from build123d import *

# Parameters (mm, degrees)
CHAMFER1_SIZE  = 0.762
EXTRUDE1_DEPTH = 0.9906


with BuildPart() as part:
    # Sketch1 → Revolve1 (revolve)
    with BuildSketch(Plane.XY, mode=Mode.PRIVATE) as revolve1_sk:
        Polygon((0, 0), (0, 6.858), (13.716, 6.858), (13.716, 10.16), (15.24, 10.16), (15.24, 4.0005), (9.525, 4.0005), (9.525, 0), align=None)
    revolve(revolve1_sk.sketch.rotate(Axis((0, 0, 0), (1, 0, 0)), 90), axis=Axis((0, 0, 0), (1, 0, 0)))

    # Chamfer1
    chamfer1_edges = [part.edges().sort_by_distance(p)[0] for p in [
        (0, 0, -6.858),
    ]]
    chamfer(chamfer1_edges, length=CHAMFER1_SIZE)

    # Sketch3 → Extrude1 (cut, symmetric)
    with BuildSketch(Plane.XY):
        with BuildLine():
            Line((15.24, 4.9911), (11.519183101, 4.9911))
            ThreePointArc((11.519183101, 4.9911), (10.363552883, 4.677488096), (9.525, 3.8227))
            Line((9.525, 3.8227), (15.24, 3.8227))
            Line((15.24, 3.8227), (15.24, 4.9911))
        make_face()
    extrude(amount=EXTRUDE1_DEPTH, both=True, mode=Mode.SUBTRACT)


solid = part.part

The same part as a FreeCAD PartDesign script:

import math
import FreeCAD as App
import Part
import Sketcher

V = App.Vector
Q = App.Units.Quantity


def edges_at(feature, points):
    """Names of the edges that pass closest to the given points."""
    edges = feature.Shape.Edges
    near = lambda p: min(range(len(edges)), key=lambda i: edges[i].distToShape(Part.Vertex(*p))[0])
    return sorted({f"Edge{near(p) + 1}" for p in points})


def add_polygon(sketch, points):
    """Adds a closed chain of lines whose ends are joined by coincident constraints."""
    first, n = sketch.GeometryCount, len(points)
    for a, b in zip(points, points[1:] + points[:1]):
        sketch.addGeometry(Part.LineSegment(App.Vector(*a, 0), App.Vector(*b, 0)), False)
    for i in range(n):
        sketch.addConstraint(Sketcher.Constraint("Coincident", first + i, 2, first + (i + 1) % n, 1))

doc = App.newDocument("Part")
body = doc.addObject("PartDesign::Body", "Body")

# Sketch on XY plane
sketch1 = doc.addObject("Sketcher::SketchObject", "Sketch")
body.addObject(sketch1)
sketch1.AttachmentSupport = (doc.XY_Plane, [""])
sketch1.MapMode = "FlatFace"
add_polygon(sketch1, [(0, 6.858), (0, 0), (9.525, 0), (9.525, 4.0005), (15.24, 4.0005), (15.24, 10.16), (13.716, 10.16), (13.716, 6.858)])  # lines 0-7
sketch1.addConstraint([
    Sketcher.Constraint("Vertical", 0),
    Sketcher.Constraint("Horizontal", 1),
    Sketcher.Constraint("Vertical", 2),
    Sketcher.Constraint("Horizontal", 3),
    Sketcher.Constraint("Vertical", 4),
    Sketcher.Constraint("Horizontal", 5),
    Sketcher.Constraint("Vertical", 6),
    Sketcher.Constraint("Horizontal", 7),
    Sketcher.Constraint("Coincident", 0, 2, -1, 1),
    Sketcher.Constraint("DistanceX", 5, 2, 5, 1, Q("0.06 in")),
    Sketcher.Constraint("DistanceX", 7, 2, 7, 1, Q("0.54 in")),
    Sketcher.Constraint("DistanceY", 0, 2, 0, 1, Q("0.27 in")),
    Sketcher.Constraint("DistanceY", 6, 2, 6, 1, Q("0.13 in")),
    Sketcher.Constraint("DistanceX", 1, 1, 1, 2, Q("0.375 in")),
    Sketcher.Constraint("DistanceY", 2, 1, 2, 2, Q("0.1575 in")),
])
revolution = doc.addObject("PartDesign::Revolution", "Revolution")
body.addObject(revolution)
revolution.Profile = sketch1
revolution.ReferenceAxis = (sketch1, ["H_Axis"])
revolution.Angle = 360
doc.recompute()

chamfer = doc.addObject("PartDesign::Chamfer", "Chamfer")
body.addObject(chamfer)
chamfer.Base = (revolution, edges_at(revolution, [(0, 0, -6.858)]))
chamfer.Size = Q("0.03 in")

# Sketch on XY plane
sketch2 = doc.addObject("Sketcher::SketchObject", "Sketch001")
body.addObject(sketch2)
sketch2.AttachmentSupport = (doc.XY_Plane, [""])
sketch2.MapMode = "FlatFace"
sketch2.addGeometry([
    Part.LineSegment(V(15.24, 4.9911, 0), V(11.519183, 4.9911, 0)),
    Part.ArcOfCircle(Part.Circle(V(11.519183, 2.7051, 0), V(0, 0, 1), 2.286), math.radians(90), math.radians(150.732422)),
    Part.LineSegment(V(9.525, 3.8227, 0), V(15.24, 3.8227, 0)),
    Part.LineSegment(V(15.24, 3.8227, 0), V(15.24, 4.9911, 0)),
], False)
sketch2.addConstraint([
    Sketcher.Constraint("Tangent", 0, 2, 1, 1),
    Sketcher.Constraint("Coincident", 1, 2, 2, 1),
    Sketcher.Constraint("Coincident", 2, 2, 3, 1),
    Sketcher.Constraint("Coincident", 3, 2, 0, 1),
    Sketcher.Constraint("Horizontal", 0),
    Sketcher.Constraint("Horizontal", 2),
    Sketcher.Constraint("Vertical", 3),
    Sketcher.Constraint("Radius", 1, Q("0.09 in")),
    Sketcher.Constraint("DistanceX", -1, 1, 2, 2, Q("0.6 in")),
    Sketcher.Constraint("DistanceX", 2, 1, 2, 2, Q("0.225 in")),
    Sketcher.Constraint("DistanceY", 3, 1, 3, 2, Q("0.046 in")),
    Sketcher.Constraint("DistanceY", -1, 1, 1, 3, Q("0.1065 in")),
])
pocket1 = doc.addObject("PartDesign::Pocket", "Pocket")
body.addObject(pocket1)
pocket1.Profile = sketch2
pocket1.Length = Q("0.078 in")
pocket1.Midplane = True

doc.recompute()
